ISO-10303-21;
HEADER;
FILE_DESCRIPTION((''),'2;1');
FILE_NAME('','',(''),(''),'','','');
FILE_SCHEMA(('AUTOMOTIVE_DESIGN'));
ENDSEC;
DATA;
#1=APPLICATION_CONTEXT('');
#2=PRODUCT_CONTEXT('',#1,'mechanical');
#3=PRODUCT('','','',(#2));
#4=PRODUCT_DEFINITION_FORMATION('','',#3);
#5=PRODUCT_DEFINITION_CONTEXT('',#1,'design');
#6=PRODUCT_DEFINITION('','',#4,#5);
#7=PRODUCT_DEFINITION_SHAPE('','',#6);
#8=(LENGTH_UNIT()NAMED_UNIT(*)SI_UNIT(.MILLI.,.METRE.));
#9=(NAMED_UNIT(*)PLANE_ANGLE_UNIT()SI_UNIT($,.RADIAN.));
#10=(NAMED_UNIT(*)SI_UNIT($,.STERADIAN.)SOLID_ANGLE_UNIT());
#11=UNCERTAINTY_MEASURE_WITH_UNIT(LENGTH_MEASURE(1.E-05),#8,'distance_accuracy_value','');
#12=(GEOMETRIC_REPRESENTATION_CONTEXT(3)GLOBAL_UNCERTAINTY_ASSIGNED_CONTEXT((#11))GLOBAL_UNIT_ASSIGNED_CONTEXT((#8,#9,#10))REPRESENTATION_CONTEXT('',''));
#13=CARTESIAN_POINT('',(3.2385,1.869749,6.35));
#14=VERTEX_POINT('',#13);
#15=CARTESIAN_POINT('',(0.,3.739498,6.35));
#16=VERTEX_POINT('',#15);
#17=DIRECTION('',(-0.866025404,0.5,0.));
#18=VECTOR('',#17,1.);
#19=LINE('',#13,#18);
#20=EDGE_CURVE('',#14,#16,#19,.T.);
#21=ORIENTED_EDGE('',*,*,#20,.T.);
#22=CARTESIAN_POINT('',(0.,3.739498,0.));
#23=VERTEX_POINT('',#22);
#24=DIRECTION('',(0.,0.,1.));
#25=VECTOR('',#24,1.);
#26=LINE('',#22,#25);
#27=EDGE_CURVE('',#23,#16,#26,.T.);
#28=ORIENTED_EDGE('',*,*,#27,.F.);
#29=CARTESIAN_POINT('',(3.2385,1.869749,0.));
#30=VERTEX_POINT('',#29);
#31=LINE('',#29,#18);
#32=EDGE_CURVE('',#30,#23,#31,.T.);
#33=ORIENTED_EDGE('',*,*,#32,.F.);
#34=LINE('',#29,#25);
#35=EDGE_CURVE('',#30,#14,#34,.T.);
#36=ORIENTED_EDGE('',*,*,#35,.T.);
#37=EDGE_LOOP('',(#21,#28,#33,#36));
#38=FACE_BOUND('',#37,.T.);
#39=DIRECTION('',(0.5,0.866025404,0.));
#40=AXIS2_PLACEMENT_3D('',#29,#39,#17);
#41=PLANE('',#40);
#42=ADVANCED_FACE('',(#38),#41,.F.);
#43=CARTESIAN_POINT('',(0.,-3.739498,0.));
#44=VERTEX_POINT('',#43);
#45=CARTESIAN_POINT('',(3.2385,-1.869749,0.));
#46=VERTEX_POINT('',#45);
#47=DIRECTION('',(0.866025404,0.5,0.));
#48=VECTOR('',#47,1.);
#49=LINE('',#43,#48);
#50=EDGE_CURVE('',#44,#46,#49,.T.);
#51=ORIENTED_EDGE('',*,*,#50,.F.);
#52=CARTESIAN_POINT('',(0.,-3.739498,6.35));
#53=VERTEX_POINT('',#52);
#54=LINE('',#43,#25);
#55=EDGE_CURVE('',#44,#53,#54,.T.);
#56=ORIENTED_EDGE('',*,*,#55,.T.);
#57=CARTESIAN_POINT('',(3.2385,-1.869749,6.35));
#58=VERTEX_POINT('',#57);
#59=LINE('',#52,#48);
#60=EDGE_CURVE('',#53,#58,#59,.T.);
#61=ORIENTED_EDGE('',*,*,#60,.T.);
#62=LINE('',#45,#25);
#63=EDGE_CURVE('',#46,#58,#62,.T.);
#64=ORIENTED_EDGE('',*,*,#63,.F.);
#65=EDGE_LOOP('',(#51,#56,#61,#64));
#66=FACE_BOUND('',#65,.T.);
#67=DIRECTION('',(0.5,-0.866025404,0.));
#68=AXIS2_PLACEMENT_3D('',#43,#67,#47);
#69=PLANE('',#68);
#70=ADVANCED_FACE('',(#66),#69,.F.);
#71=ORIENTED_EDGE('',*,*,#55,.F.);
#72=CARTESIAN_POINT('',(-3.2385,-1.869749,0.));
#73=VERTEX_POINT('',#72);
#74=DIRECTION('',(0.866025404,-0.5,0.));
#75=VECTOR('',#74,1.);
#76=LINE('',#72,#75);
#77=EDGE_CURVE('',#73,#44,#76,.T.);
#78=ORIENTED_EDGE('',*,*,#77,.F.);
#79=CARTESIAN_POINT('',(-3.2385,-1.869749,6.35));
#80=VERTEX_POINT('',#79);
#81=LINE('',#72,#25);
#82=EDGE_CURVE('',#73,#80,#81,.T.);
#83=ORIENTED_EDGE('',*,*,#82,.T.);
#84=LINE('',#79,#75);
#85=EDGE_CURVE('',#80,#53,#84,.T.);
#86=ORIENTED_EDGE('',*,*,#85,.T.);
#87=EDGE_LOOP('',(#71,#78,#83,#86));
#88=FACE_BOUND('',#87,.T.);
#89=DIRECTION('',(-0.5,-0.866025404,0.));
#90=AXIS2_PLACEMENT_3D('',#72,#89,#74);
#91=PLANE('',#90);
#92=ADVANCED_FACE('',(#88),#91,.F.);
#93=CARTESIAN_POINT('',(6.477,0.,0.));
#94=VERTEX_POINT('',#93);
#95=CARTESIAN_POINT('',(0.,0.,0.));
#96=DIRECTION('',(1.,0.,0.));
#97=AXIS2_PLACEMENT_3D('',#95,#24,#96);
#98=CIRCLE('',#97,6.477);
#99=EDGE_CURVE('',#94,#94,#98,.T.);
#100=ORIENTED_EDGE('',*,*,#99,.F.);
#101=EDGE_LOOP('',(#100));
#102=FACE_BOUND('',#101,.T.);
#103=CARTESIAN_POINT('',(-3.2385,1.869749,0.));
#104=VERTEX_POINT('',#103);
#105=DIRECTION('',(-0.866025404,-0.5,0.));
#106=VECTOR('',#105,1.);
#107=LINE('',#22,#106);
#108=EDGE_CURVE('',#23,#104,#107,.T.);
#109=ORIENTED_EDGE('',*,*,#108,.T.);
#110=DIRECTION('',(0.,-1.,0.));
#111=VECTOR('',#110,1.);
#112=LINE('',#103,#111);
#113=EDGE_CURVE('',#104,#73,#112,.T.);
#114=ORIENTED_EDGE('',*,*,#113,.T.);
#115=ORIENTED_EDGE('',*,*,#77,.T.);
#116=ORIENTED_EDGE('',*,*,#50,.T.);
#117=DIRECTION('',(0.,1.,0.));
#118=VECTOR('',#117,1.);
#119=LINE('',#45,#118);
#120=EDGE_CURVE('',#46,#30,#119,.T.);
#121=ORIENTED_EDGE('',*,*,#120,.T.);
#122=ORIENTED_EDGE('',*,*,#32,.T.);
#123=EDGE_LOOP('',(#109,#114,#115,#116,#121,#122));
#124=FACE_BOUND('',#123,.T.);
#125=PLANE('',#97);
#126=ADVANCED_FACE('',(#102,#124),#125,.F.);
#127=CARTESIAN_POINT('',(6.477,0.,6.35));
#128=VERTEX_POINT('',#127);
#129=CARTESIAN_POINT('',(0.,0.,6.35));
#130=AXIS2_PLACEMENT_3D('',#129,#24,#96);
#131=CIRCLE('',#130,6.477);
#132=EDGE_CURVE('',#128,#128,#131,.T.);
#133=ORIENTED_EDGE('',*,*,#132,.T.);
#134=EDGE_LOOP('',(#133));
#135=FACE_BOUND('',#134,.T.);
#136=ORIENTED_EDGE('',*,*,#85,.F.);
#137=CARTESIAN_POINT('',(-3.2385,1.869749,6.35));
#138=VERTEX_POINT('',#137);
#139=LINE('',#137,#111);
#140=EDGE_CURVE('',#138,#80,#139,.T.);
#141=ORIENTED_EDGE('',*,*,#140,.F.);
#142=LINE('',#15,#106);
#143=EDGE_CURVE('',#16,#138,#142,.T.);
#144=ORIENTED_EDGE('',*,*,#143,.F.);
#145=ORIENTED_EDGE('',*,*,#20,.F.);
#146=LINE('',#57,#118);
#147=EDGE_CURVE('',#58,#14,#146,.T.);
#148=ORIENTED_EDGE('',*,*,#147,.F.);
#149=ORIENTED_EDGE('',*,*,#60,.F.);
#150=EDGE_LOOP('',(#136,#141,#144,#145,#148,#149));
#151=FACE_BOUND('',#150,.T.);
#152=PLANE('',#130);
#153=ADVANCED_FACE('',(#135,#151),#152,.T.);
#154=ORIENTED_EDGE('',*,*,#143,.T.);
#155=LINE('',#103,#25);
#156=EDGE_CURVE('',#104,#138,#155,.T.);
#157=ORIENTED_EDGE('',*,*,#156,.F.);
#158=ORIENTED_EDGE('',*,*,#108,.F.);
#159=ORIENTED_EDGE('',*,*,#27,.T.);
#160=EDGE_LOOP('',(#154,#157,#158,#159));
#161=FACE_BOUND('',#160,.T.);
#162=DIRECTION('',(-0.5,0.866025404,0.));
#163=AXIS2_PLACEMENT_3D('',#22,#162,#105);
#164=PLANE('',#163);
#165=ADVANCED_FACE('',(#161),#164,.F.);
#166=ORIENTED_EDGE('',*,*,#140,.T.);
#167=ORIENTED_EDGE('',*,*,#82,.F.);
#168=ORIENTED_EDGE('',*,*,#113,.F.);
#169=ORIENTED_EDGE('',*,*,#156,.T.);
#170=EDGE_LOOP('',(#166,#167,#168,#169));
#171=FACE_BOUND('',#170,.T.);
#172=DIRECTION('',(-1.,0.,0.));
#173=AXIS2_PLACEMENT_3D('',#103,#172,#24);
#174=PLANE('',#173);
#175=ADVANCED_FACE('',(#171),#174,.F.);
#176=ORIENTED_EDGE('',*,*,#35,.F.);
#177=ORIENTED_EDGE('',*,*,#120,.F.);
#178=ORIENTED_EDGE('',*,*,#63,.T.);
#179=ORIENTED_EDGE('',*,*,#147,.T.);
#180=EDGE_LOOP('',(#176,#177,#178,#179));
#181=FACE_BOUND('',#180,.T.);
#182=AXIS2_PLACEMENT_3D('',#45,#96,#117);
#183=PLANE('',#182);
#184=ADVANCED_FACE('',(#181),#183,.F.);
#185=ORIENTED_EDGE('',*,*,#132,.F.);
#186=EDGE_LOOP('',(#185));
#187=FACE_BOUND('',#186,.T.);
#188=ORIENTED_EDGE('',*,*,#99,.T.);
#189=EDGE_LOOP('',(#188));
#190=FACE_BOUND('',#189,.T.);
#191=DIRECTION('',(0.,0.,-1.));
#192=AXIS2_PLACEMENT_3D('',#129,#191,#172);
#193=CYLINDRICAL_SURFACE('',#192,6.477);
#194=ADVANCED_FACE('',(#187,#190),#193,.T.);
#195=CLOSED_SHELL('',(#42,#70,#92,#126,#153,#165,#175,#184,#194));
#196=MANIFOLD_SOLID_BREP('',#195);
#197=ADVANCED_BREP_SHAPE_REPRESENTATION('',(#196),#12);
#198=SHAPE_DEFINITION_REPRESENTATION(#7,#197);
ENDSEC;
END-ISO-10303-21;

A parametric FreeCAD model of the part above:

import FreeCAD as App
import Part
import Sketcher
from FreeCAD import Vector
Q = App.Units.Quantity


def add_polygon(sketch, points):
    """Adds a closed chain of lines whose ends are joined by coincident constraints."""
    first, n = sketch.GeometryCount, len(points)
    for a, b in zip(points, points[1:] + points[:1]):
        sketch.addGeometry(Part.LineSegment(App.Vector(*a, 0), App.Vector(*b, 0)), False)
    for i in range(n):
        sketch.addConstraint(Sketcher.Constraint("Coincident", first + i, 2, first + (i + 1) % n, 1))

doc = App.newDocument("Part")
params = doc.addObject("Spreadsheet::Sheet", "Params")
for row, (alias, value) in enumerate([
    ("sketch1_diameter", "0.51 in"),
    ("pad1_length", "0.25 in"),
], start=1):
    params.set(f"A{row}", alias)
    params.set(f"B{row}", "=" + value)
    params.setAlias(f"B{row}", alias)

body = doc.addObject("PartDesign::Body", "Body")

sketch1 = doc.addObject("Sketcher::SketchObject", "Sketch")
body.addObject(sketch1)
sketch1.AttachmentSupport = (doc.XY_Plane, [""])
sketch1.MapMode = "FlatFace"
sketch1.addGeometry(Part.Circle(Vector(0, 0, 0), Vector(0, 0, 1), 6), False)
sketch1.addConstraint(Sketcher.Constraint("Coincident", 0, 3, -1, 1))
sketch1.addConstraint(Sketcher.Constraint("Diameter", 0, Q("0.51 in")))
sketch1.setExpression("Constraints[1]", "Params.sketch1_diameter")
pad1 = doc.addObject("PartDesign::Pad", "Pad")
body.addObject(pad1)
pad1.Profile = sketch1
pad1.setExpression("Length", "Params.pad1_length")

sketch2 = doc.addObject("Sketcher::SketchObject", "Sketch001")
body.addObject(sketch2)
sketch2.AttachmentSupport = (doc.XY_Plane, [""])
sketch2.MapMode = "FlatFace"
sketch2.AttachmentOffset = App.Placement(Vector(0, 0, 0.25 * 25.4), App.Rotation())
add_polygon(sketch2, [(3.2, 1.9), (0, 3.7), (-3.2, 1.9), (-3.2, -1.9), (0, -3.7), (3.2, -1.9)])
sketch2.addConstraint(Sketcher.Constraint("Vertical", 2))
sketch2.addConstraint(Sketcher.Constraint("Vertical", 5))
sketch2.addConstraint(Sketcher.Constraint("Symmetric", 0, 2, 3, 2, -1, 1))
sketch2.addConstraint(Sketcher.Constraint("Symmetric", 1, 2, 4, 2, -1, 1))
sketch2.addConstraint(Sketcher.Constraint("PointOnObject", 0, 2, -2))
sketch2.addConstraint(Sketcher.Constraint("Parallel", 0, 3))
sketch2.addConstraint(Sketcher.Constraint("Horizontal", 2, 2, 4, 2))
sketch2.addConstraint(Sketcher.Constraint("Angle", 0, Q("150 deg")))
sketch2.addConstraint(Sketcher.Constraint("DistanceX", 2, 2, 4, 2, Q("0.255 in")))
sketch2.addConstraint(Sketcher.Constraint("DistanceY", 2, 2, 2, 1, Q("3.739498 mm")))
pocket1 = doc.addObject("PartDesign::Pocket", "Pocket")
body.addObject(pocket1)
pocket1.Profile = sketch2
pocket1.Type = "ThroughAll"

doc.recompute()
